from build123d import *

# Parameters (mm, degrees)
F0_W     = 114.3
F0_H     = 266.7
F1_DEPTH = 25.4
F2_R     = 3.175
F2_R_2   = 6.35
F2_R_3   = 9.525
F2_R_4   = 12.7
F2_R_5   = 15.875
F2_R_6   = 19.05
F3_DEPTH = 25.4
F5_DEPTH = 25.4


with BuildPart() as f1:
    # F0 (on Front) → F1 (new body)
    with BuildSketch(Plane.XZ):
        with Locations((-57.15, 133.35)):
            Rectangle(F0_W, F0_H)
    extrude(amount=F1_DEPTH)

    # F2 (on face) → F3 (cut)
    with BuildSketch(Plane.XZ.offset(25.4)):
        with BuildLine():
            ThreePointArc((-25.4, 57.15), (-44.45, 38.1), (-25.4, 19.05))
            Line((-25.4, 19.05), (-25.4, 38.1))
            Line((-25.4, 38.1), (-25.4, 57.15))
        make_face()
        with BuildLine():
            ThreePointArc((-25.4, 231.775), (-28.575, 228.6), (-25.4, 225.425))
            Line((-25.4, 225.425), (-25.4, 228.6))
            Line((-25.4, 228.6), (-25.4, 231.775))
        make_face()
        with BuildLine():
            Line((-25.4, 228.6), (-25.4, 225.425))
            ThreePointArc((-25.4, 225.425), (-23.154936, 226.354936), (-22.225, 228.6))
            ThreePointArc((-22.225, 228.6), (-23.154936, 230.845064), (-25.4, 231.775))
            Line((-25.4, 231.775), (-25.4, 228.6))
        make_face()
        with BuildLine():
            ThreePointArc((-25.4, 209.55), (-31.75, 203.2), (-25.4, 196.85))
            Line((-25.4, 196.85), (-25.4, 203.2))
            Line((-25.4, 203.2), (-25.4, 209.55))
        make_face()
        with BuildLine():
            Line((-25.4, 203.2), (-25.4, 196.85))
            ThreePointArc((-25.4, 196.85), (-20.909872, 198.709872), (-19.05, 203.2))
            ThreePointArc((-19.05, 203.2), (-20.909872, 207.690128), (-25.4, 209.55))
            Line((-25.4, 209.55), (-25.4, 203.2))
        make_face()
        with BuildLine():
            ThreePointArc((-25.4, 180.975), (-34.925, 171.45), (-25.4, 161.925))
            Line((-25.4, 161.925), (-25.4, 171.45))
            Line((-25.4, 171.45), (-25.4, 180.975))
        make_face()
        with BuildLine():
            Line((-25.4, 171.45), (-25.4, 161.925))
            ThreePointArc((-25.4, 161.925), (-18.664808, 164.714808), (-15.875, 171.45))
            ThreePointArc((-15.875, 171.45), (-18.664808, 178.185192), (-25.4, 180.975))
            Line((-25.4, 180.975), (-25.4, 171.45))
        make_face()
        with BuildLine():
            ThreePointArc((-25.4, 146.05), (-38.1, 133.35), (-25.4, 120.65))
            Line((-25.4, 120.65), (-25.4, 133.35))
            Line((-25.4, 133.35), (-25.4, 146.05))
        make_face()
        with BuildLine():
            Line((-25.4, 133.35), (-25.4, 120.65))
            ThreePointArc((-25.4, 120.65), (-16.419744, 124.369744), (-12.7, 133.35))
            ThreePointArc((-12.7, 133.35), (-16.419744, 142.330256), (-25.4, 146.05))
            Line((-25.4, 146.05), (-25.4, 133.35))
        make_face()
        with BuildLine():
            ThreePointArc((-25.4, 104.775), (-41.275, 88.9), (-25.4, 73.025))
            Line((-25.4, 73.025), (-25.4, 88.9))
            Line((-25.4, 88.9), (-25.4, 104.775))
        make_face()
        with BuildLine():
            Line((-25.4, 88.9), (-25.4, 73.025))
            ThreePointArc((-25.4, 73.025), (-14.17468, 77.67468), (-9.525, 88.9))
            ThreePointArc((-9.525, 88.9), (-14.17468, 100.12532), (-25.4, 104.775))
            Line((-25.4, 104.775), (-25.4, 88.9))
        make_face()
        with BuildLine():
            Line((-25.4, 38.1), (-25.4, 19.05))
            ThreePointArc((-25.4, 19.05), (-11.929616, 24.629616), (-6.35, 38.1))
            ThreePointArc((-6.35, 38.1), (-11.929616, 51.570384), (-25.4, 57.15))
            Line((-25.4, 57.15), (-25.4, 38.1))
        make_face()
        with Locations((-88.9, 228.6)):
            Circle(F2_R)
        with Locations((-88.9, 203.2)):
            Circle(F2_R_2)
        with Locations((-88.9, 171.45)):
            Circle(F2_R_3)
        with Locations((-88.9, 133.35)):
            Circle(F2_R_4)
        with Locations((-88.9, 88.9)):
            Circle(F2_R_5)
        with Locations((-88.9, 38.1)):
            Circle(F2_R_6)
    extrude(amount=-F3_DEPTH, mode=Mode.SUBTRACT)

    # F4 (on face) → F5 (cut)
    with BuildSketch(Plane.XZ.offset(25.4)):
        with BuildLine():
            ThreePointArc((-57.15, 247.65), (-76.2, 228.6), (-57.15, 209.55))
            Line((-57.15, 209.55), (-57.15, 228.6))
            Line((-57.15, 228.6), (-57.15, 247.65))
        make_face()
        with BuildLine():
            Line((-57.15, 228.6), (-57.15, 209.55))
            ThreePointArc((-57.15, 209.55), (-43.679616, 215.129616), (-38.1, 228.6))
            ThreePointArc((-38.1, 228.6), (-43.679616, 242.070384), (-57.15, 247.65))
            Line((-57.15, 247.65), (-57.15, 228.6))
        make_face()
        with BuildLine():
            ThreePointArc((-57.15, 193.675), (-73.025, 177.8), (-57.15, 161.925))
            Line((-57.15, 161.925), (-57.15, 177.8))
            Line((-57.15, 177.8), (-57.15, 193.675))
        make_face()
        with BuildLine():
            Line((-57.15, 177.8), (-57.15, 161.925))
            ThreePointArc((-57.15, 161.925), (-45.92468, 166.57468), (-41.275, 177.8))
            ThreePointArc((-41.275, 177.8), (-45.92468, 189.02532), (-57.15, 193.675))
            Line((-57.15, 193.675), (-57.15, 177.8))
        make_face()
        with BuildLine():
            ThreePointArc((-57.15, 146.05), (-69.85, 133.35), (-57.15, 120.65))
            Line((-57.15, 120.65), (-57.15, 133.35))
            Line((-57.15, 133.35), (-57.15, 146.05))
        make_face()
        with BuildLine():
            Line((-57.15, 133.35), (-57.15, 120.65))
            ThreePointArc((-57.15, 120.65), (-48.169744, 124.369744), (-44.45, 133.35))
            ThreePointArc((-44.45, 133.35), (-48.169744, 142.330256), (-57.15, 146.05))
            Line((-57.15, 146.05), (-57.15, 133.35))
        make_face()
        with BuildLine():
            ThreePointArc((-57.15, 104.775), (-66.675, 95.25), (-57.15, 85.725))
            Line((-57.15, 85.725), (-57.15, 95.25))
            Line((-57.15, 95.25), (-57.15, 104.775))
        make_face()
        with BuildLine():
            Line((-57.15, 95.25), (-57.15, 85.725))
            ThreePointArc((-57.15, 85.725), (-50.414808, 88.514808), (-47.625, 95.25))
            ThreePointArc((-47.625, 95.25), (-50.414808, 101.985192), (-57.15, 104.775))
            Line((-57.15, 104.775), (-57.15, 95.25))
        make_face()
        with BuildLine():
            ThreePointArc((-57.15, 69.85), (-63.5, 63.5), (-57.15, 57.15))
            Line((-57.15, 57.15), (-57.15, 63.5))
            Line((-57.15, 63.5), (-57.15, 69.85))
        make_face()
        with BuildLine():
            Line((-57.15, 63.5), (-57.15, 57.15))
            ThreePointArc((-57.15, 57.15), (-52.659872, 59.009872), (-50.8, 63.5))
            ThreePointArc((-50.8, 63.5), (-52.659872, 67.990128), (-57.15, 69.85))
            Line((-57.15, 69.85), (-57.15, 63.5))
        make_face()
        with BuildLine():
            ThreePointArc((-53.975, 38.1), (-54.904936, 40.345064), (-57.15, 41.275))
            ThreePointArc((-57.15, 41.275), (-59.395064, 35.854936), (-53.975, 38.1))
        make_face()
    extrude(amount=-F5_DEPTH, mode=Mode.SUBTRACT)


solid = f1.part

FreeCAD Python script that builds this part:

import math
import FreeCAD as App
import Part
import Sketcher
from FreeCAD import Vector
Q = App.Units.Quantity


def add_polygon(sketch, points):
    """Adds a closed chain of lines whose ends are joined by coincident constraints."""
    first, n = sketch.GeometryCount, len(points)
    for a, b in zip(points, points[1:] + points[:1]):
        sketch.addGeometry(Part.LineSegment(App.Vector(*a, 0), App.Vector(*b, 0)), False)
    for i in range(n):
        sketch.addConstraint(Sketcher.Constraint("Coincident", first + i, 2, first + (i + 1) % n, 1))

doc = App.newDocument("Part")
params = doc.addObject("Spreadsheet::Sheet", "Params")
for row, (alias, value) in enumerate([
    ("sketch1_width", "4.5 in"),
    ("sketch1_height", "10.5 in"),
    ("pad1_length", "1 in"),
    ("sketch2_diameter", "1 in"),
    ("sketch2_diameter2", "0.5 in"),
    ("sketch2_diameter3", "1.5 in"),
    ("sketch2_diameter4", "0.25 in"),
    ("sketch2_diameter5", "0.75 in"),
    ("pocket1_length", "1 in"),
    ("sketch3_radius", "0.5 in"),
    ("sketch3_radius2", "0.75 in"),
    ("sketch3_radius3", "0.25 in"),
    ("sketch3_radius4", "0.625 in"),
    ("sketch3_radius5", "0.375 in"),
    ("pocket2_length", "1 in"),
], start=1):
    params.set(f"A{row}", alias)
    params.set(f"B{row}", "=" + value)
    params.setAlias(f"B{row}", alias)

body = doc.addObject("PartDesign::Body", "Body")

# Sketch on XZ plane
sketch1 = body.newObject("Sketcher::SketchObject", "Sketch")
sketch1.AttachmentSupport = (doc.getObject("XZ_Plane"), [""])
sketch1.MapMode = "FlatFace"
add_polygon(sketch1, [(-114, 267), (-114, 0), (0, 0), (0, 267)])  # lines 0-3
sketch1.addConstraint([
    Sketcher.Constraint("Vertical", 0),
    Sketcher.Constraint("Horizontal", 1),
    Sketcher.Constraint("Vertical", 2),
    Sketcher.Constraint("Horizontal", 3),
    Sketcher.Constraint("Coincident", 1, 2, -1, 1),
    Sketcher.Constraint("DistanceX", 1, 1, 1, 2, Q("4.5 in")),
    Sketcher.Constraint("DistanceY", 0, 2, 0, 1, Q("10.5 in")),
])
sketch1.setExpression("Constraints[9]", "Params.sketch1_width")
sketch1.setExpression("Constraints[10]", "Params.sketch1_height")
pad1 = body.newObject("PartDesign::Pad", "Pad")
pad1.Profile = sketch1
pad1.setExpression("Length", "Params.pad1_length")

# Sketch on XZ plane
sketch2 = body.newObject("Sketcher::SketchObject", "Sketch001")
sketch2.AttachmentSupport = (doc.getObject("XZ_Plane"), [""])
sketch2.MapMode = "FlatFace"
sketch2.AttachmentOffset = App.Placement(Vector(0, 0, 1 * 25.4), App.Rotation())
sketch2.addGeometry([
    Part.ArcOfCircle(Part.Circle(Vector(-25.4, 38.1, 0), Vector(0, 0, 1), 19.1), math.radians(90), math.radians(270)),  # 0
    Part.ArcOfCircle(Part.Circle(Vector(-25.4, 38.1, 0), Vector(0, 0, 1), 19.1), math.radians(-90), math.radians(0)),  # 1
    Part.ArcOfCircle(Part.Circle(Vector(-25.4, 38.1, 0), Vector(0, 0, 1), 19.1), math.radians(0), math.radians(90)),  # 2
    Part.ArcOfCircle(Part.Circle(Vector(-25.4, 228.6, 0), Vector(0, 0, 1), 3.2), math.radians(90), math.radians(270)),  # 3
    Part.ArcOfCircle(Part.Circle(Vector(-25.4, 228.6, 0), Vector(0, 0, 1), 3.2), math.radians(-90), math.radians(0)),  # 4
    Part.ArcOfCircle(Part.Circle(Vector(-25.4, 228.6, 0), Vector(0, 0, 1), 3.2), math.radians(0), math.radians(90)),  # 5
    Part.ArcOfCircle(Part.Circle(Vector(-25.4, 203.2, 0), Vector(0, 0, 1), 6.3), math.radians(90), math.radians(270)),  # 6
    Part.ArcOfCircle(Part.Circle(Vector(-25.4, 203.2, 0), Vector(0, 0, 1), 6.4), math.radians(-90), math.radians(0)),  # 7
    Part.ArcOfCircle(Part.Circle(Vector(-25.4, 203.2, 0), Vector(0, 0, 1), 6.4), math.radians(0), math.radians(90)),  # 8
    Part.ArcOfCircle(Part.Circle(Vector(-25.4, 171.4, 0), Vector(0, 0, 1), 9.5), math.radians(90), math.radians(270)),  # 9
    Part.ArcOfCircle(Part.Circle(Vector(-25.4, 171.5, 0), Vector(0, 0, 1), 9.5), math.radians(-90), math.radians(0)),  # 10
    Part.ArcOfCircle(Part.Circle(Vector(-25.4, 171.4, 0), Vector(0, 0, 1), 9.5), math.radians(0), math.radians(90)),  # 11
    Part.ArcOfCircle(Part.Circle(Vector(-25.4, 133.3, 0), Vector(0, 0, 1), 12.7), math.radians(90), math.radians(270)),  # 12
    Part.ArcOfCircle(Part.Circle(Vector(-25.4, 133.4, 0), Vector(0, 0, 1), 12.7), math.radians(-90), math.radians(0)),  # 13
    Part.ArcOfCircle(Part.Circle(Vector(-25.4, 133.3, 0), Vector(0, 0, 1), 12.7), math.radians(0), math.radians(90)),  # 14
    Part.ArcOfCircle(Part.Circle(Vector(-25.4, 88.9, 0), Vector(0, 0, 1), 15.9), math.radians(90), math.radians(270)),  # 15
    Part.ArcOfCircle(Part.Circle(Vector(-25.4, 88.9, 0), Vector(0, 0, 1), 15.9), math.radians(-90), math.radians(0)),  # 16
    Part.ArcOfCircle(Part.Circle(Vector(-25.4, 88.9, 0), Vector(0, 0, 1), 15.9), math.radians(0), math.radians(90)),  # 17
    Part.Circle(Vector(-88.9, 228.6, 0), Vector(0, 0, 1), 3.2),  # 18
    Part.Circle(Vector(-88.9, 203.2, 0), Vector(0, 0, 1), 6.3),  # 19
    Part.Circle(Vector(-88.9, 171.4, 0), Vector(0, 0, 1), 9.5),  # 20
    Part.Circle(Vector(-88.9, 133.3, 0), Vector(0, 0, 1), 12.7),  # 21
    Part.Circle(Vector(-88.9, 88.9, 0), Vector(0, 0, 1), 15.9),  # 22
    Part.Circle(Vector(-88.9, 38.1, 0), Vector(0, 0, 1), 19.1),  # 23
], False)
sketch2.addConstraint([
    Sketcher.Constraint("Tangent", 0, 2, 1, 1),
    Sketcher.Constraint("Tangent", 1, 2, 2, 1),
    Sketcher.Constraint("Tangent", 2, 2, 0, 1),
    Sketcher.Constraint("Tangent", 3, 2, 4, 1),
    Sketcher.Constraint("Tangent", 4, 2, 5, 1),
    Sketcher.Constraint("Tangent", 5, 2, 3, 1),
    Sketcher.Constraint("Tangent", 6, 2, 7, 1),
    Sketcher.Constraint("Tangent", 7, 2, 8, 1),
    Sketcher.Constraint("Tangent", 8, 2, 6, 1),
    Sketcher.Constraint("Tangent", 9, 2, 10, 1),
    Sketcher.Constraint("Tangent", 10, 2, 11, 1),
    Sketcher.Constraint("Tangent", 11, 2, 9, 1),
    Sketcher.Constraint("Tangent", 12, 2, 13, 1),
    Sketcher.Constraint("Tangent", 13, 2, 14, 1),
    Sketcher.Constraint("Tangent", 14, 2, 12, 1),
    Sketcher.Constraint("Tangent", 15, 2, 16, 1),
    Sketcher.Constraint("Tangent", 16, 2, 17, 1),
    Sketcher.Constraint("Tangent", 17, 2, 15, 1),
    Sketcher.Constraint("Equal", 5, 18),
    Sketcher.Constraint("Equal", 8, 19),
    Sketcher.Constraint("Equal", 11, 20),
    Sketcher.Constraint("Equal", 14, 21),
    Sketcher.Constraint("Equal", 17, 22),
    Sketcher.Constraint("Equal", 2, 23),
    Sketcher.Constraint("Horizontal", 5, 3, 18, 3),
    Sketcher.Constraint("Horizontal", 8, 3, 19, 3),
    Sketcher.Constraint("Horizontal", 11, 3, 20, 3),
    Sketcher.Constraint("Horizontal", 14, 3, 21, 3),
    Sketcher.Constraint("Horizontal", 17, 3, 22, 3),
    Sketcher.Constraint("Horizontal", 2, 3, 23, 3),
    Sketcher.Constraint("Horizontal", 23, 3, 1, 2),
    Sketcher.Constraint("Horizontal", 18, 3, 4, 2),
    Sketcher.Constraint("Horizontal", 19, 3, 7, 2),
    Sketcher.Constraint("Horizontal", 20, 3, 10, 2),
    Sketcher.Constraint("Horizontal", 21, 3, 13, 2),
    Sketcher.Constraint("Horizontal", 22, 3, 16, 2),
    Sketcher.Constraint("Vertical", 2, 3, 3, 3),
    Sketcher.Constraint("Vertical", 5, 3, 6, 3),
    Sketcher.Constraint("Vertical", 8, 3, 9, 3),
    Sketcher.Constraint("Vertical", 11, 3, 12, 3),
    Sketcher.Constraint("Vertical", 14, 3, 15, 3),
    Sketcher.Constraint("Vertical", 18, 3, 19, 3),
    Sketcher.Constraint("Vertical", 19, 3, 20, 3),
    Sketcher.Constraint("Vertical", 20, 3, 21, 3),
    Sketcher.Constraint("Vertical", 21, 3, 22, 3),
    Sketcher.Constraint("Vertical", 22, 3, 23, 3),
    Sketcher.Constraint("Vertical", 17, 3, 0, 2),
    Sketcher.Constraint("Vertical", 0, 2, 2, 2),
    Sketcher.Constraint("Vertical", 2, 2, 3, 2),
    Sketcher.Constraint("Vertical", 3, 2, 5, 2),
    Sketcher.Constraint("Vertical", 5, 2, 6, 2),
    Sketcher.Constraint("Vertical", 6, 2, 8, 2),
    Sketcher.Constraint("Vertical", 8, 2, 9, 2),
    Sketcher.Constraint("Vertical", 9, 2, 11, 2),
    Sketcher.Constraint("Vertical", 11, 2, 12, 2),
    Sketcher.Constraint("Vertical", 12, 2, 14, 2),
    Sketcher.Constraint("Vertical", 14, 2, 15, 2),
    Sketcher.Constraint("Vertical", 15, 2, 17, 2),
    Sketcher.Constraint("Diameter", 21, Q("1 in")),
    Sketcher.Constraint("Diameter", 19, Q("0.5 in")),
    Sketcher.Constraint("Diameter", 23, Q("1.5 in")),
    Sketcher.Constraint("Diameter", 18, Q("0.25 in")),
    Sketcher.Constraint("Diameter", 20, Q("0.75 in")),
    Sketcher.Constraint("Diameter", 22, Q("1.25 in")),
    Sketcher.Constraint("DistanceX", 0, 3, -1, 1, Q("1 in")),
    Sketcher.Constraint("DistanceY", -1, 1, 3, 3, Q("9 in")),
    Sketcher.Constraint("DistanceY", -1, 1, 6, 3, Q("8 in")),
    Sketcher.Constraint("DistanceY", 1, 3, 15, 3, Q("2 in")),
    Sketcher.Constraint("DistanceY", 10, 3, 6, 2, Q("1 in")),
    Sketcher.Constraint("DistanceY", -1, 1, 0, 3, Q("1.5 in")),
    Sketcher.Constraint("DistanceX", 18, 3, -1, 1, Q("3.5 in")),
    Sketcher.Constraint("DistanceY", 12, 3, 11, 3, Q("1.5 in")),
])
sketch2.setExpression("Constraints[58]", "Params.sketch2_diameter")
sketch2.setExpression("Constraints[59]", "Params.sketch2_diameter2")
sketch2.setExpression("Constraints[60]", "Params.sketch2_diameter3")
sketch2.setExpression("Constraints[61]", "Params.sketch2_diameter4")
sketch2.setExpression("Constraints[62]", "Params.sketch2_diameter5")
pocket1 = body.newObject("PartDesign::Pocket", "Pocket")
pocket1.Profile = sketch2
pocket1.setExpression("Length", "Params.pocket1_length")

# Sketch on XZ plane
sketch3 = body.newObject("Sketcher::SketchObject", "Sketch002")
sketch3.AttachmentSupport = (doc.getObject("XZ_Plane"), [""])
sketch3.MapMode = "FlatFace"
sketch3.AttachmentOffset = App.Placement(Vector(0, 0, 1 * 25.4), App.Rotation())
sketch3.addGeometry([
    Part.ArcOfCircle(Part.Circle(Vector(-57.1, 228.6, 0), Vector(0, 0, 1), 19.1), math.radians(90), math.radians(270)),  # 0
    Part.ArcOfCircle(Part.Circle(Vector(-57.2, 228.6, 0), Vector(0, 0, 1), 19.1), math.radians(-90), math.radians(0)),  # 1
    Part.ArcOfCircle(Part.Circle(Vector(-57.2, 228.6, 0), Vector(0, 0, 1), 19.1), math.radians(0), math.radians(90)),  # 2
    Part.ArcOfCircle(Part.Circle(Vector(-57.1, 177.8, 0), Vector(0, 0, 1), 15.9), math.radians(90), math.radians(270)),  # 3
    Part.ArcOfCircle(Part.Circle(Vector(-57.2, 177.8, 0), Vector(0, 0, 1), 15.9), math.radians(-90), math.radians(0)),  # 4
    Part.ArcOfCircle(Part.Circle(Vector(-57.2, 177.8, 0), Vector(0, 0, 1), 15.9), math.radians(0), math.radians(90)),  # 5
    Part.ArcOfCircle(Part.Circle(Vector(-57.1, 133.3, 0), Vector(0, 0, 1), 12.7), math.radians(90), math.radians(270)),  # 6
    Part.ArcOfCircle(Part.Circle(Vector(-57.2, 133.4, 0), Vector(0, 0, 1), 12.7), math.radians(-90), math.radians(0)),  # 7
    Part.ArcOfCircle(Part.Circle(Vector(-57.2, 133.3, 0), Vector(0, 0, 1), 12.7), math.radians(0), math.radians(90)),  # 8
    Part.ArcOfCircle(Part.Circle(Vector(-57.1, 95.2, 0), Vector(0, 0, 1), 9.5), math.radians(90), math.radians(270)),  # 9
    Part.ArcOfCircle(Part.Circle(Vector(-57.2, 95.3, 0), Vector(0, 0, 1), 9.5), math.radians(-90), math.radians(0)),  # 10
    Part.ArcOfCircle(Part.Circle(Vector(-57.2, 95.2, 0), Vector(0, 0, 1), 9.5), math.radians(0), math.radians(90)),  # 11
    Part.ArcOfCircle(Part.Circle(Vector(-57.1, 63.5, 0), Vector(0, 0, 1), 6.3), math.radians(90), math.radians(270)),  # 12
    Part.ArcOfCircle(Part.Circle(Vector(-57.2, 63.5, 0), Vector(0, 0, 1), 6.4), math.radians(-90), math.radians(0)),  # 13
    Part.ArcOfCircle(Part.Circle(Vector(-57.2, 63.5, 0), Vector(0, 0, 1), 6.4), math.radians(0), math.radians(90)),  # 14
    Part.ArcOfCircle(Part.Circle(Vector(-57.2, 38.1, 0), Vector(0, 0, 1), 3.2), math.radians(0), math.radians(90)),  # 15
    Part.ArcOfCircle(Part.Circle(Vector(-57.1, 38.1, 0), Vector(0, 0, 1), 3.2), math.radians(90), math.radians(360)),  # 16
], False)
sketch3.addConstraint([
    Sketcher.Constraint("Tangent", 0, 2, 1, 1),
    Sketcher.Constraint("Tangent", 1, 2, 2, 1),
    Sketcher.Constraint("Tangent", 2, 2, 0, 1),
    Sketcher.Constraint("Tangent", 3, 2, 4, 1),
    Sketcher.Constraint("Tangent", 4, 2, 5, 1),
    Sketcher.Constraint("Tangent", 5, 2, 3, 1),
    Sketcher.Constraint("Tangent", 6, 2, 7, 1),
    Sketcher.Constraint("Tangent", 7, 2, 8, 1),
    Sketcher.Constraint("Tangent", 8, 2, 6, 1),
    Sketcher.Constraint("Tangent", 9, 2, 10, 1),
    Sketcher.Constraint("Tangent", 10, 2, 11, 1),
    Sketcher.Constraint("Tangent", 11, 2, 9, 1),
    Sketcher.Constraint("Tangent", 12, 2, 13, 1),
    Sketcher.Constraint("Tangent", 13, 2, 14, 1),
    Sketcher.Constraint("Tangent", 14, 2, 12, 1),
    Sketcher.Constraint("Tangent", 15, 1, 16, 2),
    Sketcher.Constraint("Coincident", 16, 1, 15, 2),
    Sketcher.Constraint("Horizontal", 2, 3, 1, 2),
    Sketcher.Constraint("Horizontal", 5, 3, 4, 2),
    Sketcher.Constraint("Horizontal", 8, 3, 7, 2),
    Sketcher.Constraint("Horizontal", 11, 3, 10, 2),
    Sketcher.Constraint("Horizontal", 14, 3, 13, 2),
    Sketcher.Constraint("Horizontal", 16, 3, 15, 1),
    Sketcher.Constraint("Vertical", 2, 3, 3, 3),
    Sketcher.Constraint("Vertical", 5, 3, 6, 3),
    Sketcher.Constraint("Vertical", 8, 3, 9, 3),
    Sketcher.Constraint("Vertical", 11, 3, 12, 3),
    Sketcher.Constraint("Vertical", 14, 3, 15, 3),
    Sketcher.Constraint("Vertical", 16, 3, 0, 2),
    Sketcher.Constraint("Vertical", 0, 2, 2, 2),
    Sketcher.Constraint("Vertical", 2, 2, 3, 2),
    Sketcher.Constraint("Vertical", 3, 2, 5, 2),
    Sketcher.Constraint("Vertical", 5, 2, 6, 2),
    Sketcher.Constraint("Vertical", 6, 2, 8, 2),
    Sketcher.Constraint("Vertical", 8, 2, 9, 2),
    Sketcher.Constraint("Vertical", 9, 2, 11, 2),
    Sketcher.Constraint("Vertical", 11, 2, 12, 2),
    Sketcher.Constraint("Vertical", 12, 2, 14, 2),
    Sketcher.Constraint("Vertical", 14, 2, 16, 1),
    Sketcher.Constraint("Radius", 6, Q("0.5 in")),
    Sketcher.Constraint("Radius", 0, Q("0.75 in")),
    Sketcher.Constraint("Radius", 12, Q("0.25 in")),
    Sketcher.Constraint("DistanceY", -1, 1, 0, 3, Q("9 in")),
    Sketcher.Constraint("DistanceY", -1, 1, 3, 3, Q("7 in")),
    Sketcher.Constraint("DistanceX", 13, 2, -1, 1, Q("2 in")),
    Sketcher.Constraint("Radius", 3, Q("0.625 in")),
    Sketcher.Constraint("Radius", 9, Q("0.375 in")),
    Sketcher.Constraint("Radius", 15, Q("0.125 in")),
    Sketcher.Constraint("DistanceY", 15, 3, 14, 3, Q("1 in")),
    Sketcher.Constraint("DistanceY", 10, 3, 6, 2, Q("1 in")),
    Sketcher.Constraint("DistanceY", -1, 1, 12, 3, Q("2.5 in")),
    Sketcher.Constraint("DistanceY", -1, 1, 6, 3, Q("5.25 in")),
])
sketch3.setExpression("Constraints[39]", "Params.sketch3_radius")
sketch3.setExpression("Constraints[40]", "Params.sketch3_radius2")
sketch3.setExpression("Constraints[41]", "Params.sketch3_radius3")
sketch3.setExpression("Constraints[45]", "Params.sketch3_radius4")
sketch3.setExpression("Constraints[46]", "Params.sketch3_radius5")
pocket2 = body.newObject("PartDesign::Pocket", "Pocket001")
pocket2.Profile = sketch3
pocket2.setExpression("Length", "Params.pocket2_length")

doc.recompute()
